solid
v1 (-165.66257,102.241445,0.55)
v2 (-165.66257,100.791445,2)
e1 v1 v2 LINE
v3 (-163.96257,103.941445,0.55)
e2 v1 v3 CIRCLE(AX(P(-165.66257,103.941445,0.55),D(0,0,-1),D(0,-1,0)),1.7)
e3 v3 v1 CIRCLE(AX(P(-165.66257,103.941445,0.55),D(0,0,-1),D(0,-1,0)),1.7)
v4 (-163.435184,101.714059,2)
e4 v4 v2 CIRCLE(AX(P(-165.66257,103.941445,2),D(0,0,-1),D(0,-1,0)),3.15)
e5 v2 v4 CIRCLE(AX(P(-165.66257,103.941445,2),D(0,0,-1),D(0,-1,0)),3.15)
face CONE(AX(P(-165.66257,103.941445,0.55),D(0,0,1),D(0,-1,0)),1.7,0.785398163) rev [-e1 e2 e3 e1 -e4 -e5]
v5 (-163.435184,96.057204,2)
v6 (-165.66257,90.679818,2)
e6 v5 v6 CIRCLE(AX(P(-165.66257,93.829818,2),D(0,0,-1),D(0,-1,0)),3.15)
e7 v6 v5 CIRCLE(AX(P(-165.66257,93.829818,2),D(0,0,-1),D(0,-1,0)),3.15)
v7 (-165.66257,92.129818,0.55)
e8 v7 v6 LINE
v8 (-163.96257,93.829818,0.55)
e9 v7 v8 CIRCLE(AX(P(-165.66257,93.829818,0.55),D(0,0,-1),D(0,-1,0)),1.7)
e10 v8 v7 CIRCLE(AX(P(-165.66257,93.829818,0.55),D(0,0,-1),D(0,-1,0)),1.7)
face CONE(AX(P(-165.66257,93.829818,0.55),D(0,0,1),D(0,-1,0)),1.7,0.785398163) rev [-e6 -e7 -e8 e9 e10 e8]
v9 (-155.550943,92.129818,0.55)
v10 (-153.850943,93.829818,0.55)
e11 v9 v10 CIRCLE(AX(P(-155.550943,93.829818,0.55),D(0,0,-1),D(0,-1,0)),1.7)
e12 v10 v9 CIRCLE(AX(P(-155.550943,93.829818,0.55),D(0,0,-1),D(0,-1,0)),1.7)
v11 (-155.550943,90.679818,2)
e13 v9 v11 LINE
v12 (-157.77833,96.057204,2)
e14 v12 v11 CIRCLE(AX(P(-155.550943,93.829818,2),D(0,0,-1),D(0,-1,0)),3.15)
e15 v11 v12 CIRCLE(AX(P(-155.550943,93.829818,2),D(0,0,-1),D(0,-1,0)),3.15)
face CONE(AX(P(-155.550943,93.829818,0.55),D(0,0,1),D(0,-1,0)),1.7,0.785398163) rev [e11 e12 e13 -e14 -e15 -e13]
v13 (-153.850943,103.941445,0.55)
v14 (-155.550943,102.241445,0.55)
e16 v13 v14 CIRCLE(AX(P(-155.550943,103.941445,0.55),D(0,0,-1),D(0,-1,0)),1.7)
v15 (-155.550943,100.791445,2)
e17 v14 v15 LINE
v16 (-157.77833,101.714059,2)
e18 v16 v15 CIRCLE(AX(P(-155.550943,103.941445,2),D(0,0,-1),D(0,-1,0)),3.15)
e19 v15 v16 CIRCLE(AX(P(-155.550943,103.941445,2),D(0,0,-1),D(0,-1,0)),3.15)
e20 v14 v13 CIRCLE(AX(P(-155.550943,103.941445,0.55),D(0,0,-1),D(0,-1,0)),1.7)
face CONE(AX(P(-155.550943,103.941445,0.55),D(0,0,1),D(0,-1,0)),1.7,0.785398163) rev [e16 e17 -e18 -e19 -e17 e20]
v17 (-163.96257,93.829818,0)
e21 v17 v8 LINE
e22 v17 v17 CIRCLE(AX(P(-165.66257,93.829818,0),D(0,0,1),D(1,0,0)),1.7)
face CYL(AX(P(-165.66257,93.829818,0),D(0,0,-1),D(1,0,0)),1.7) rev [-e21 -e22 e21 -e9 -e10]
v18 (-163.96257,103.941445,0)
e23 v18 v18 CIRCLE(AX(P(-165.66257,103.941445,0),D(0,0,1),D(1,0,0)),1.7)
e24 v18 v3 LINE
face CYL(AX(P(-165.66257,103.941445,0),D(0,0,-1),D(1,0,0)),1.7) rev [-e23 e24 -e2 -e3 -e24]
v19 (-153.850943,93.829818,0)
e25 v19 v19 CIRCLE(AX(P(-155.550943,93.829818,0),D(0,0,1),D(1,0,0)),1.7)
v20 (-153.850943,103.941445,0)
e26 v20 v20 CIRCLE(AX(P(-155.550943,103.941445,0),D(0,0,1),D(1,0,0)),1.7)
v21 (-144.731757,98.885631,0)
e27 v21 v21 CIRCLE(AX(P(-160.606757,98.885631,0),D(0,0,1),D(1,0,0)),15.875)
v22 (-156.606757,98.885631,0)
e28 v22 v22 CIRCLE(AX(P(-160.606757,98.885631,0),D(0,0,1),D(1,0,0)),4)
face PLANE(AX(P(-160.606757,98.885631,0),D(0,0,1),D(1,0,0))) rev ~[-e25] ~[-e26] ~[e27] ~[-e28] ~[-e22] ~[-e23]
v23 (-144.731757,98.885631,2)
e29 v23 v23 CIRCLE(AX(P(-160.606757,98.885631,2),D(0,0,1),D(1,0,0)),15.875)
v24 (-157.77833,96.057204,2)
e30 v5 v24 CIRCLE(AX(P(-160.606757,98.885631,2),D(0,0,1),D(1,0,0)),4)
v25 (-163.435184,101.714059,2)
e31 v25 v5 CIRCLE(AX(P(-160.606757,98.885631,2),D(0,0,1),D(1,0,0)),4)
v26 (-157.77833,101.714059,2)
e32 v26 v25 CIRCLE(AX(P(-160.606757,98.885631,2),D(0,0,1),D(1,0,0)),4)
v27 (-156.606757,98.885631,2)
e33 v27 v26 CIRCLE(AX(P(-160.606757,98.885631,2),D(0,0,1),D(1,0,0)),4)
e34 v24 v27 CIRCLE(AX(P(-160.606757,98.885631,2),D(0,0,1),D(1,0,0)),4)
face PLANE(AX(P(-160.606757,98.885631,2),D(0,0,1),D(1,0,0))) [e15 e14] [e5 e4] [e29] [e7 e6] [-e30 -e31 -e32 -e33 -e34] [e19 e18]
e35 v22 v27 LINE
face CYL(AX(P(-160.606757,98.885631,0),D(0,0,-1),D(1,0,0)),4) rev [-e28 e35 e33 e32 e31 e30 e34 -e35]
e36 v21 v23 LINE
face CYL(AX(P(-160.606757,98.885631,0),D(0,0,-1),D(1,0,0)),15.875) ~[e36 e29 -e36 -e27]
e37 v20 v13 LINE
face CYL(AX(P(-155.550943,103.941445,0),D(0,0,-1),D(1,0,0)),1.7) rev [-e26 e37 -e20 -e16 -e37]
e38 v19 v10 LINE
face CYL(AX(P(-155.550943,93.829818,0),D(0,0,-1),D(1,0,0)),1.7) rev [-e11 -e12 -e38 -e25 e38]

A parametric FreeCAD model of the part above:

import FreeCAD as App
import Part
import Sketcher
from FreeCAD import Vector
Q = App.Units.Quantity


def add_polygon(sketch, points):
    """Adds a closed chain of lines whose ends are joined by coincident constraints."""
    first, n = sketch.GeometryCount, len(points)
    for a, b in zip(points, points[1:] + points[:1]):
        sketch.addGeometry(Part.LineSegment(App.Vector(*a, 0), App.Vector(*b, 0)), False)
    for i in range(n):
        sketch.addConstraint(Sketcher.Constraint("Coincident", first + i, 2, first + (i + 1) % n, 1))

doc = App.newDocument("Part")
body = doc.addObject("PartDesign::Body", "Body")

# Sketch on XY plane
sketch1 = doc.addObject("Sketcher::SketchObject", "Sketch")
body.addObject(sketch1)
sketch1.AttachmentSupport = (doc.XY_Plane, [""])
sketch1.MapMode = "FlatFace"
sketch1.addGeometry([
    Part.Circle(Vector(-160.6, 98.9, 0), Vector(0, 0, 1), 15.9),  # 0
    Part.Circle(Vector(-165.7, 93.8, 0), Vector(0, 0, 1), 1.7),  # 1
    Part.Circle(Vector(-155.6, 93.8, 0), Vector(0, 0, 1), 1.7),  # 2
    Part.Circle(Vector(-165.7, 103.9, 0), Vector(0, 0, 1), 1.7),  # 3
    Part.Circle(Vector(-160.6, 98.9, 0), Vector(0, 0, 1), 4),  # 4
    Part.Circle(Vector(-155.6, 103.9, 0), Vector(0, 0, 1), 1.7),  # 5
], False)
sketch1.addConstraint([
    Sketcher.Constraint("Coincident", 4, 3, 0, 3),
    Sketcher.Constraint("Equal", 1, 2),
    Sketcher.Constraint("Equal", 2, 3),
    Sketcher.Constraint("Equal", 3, 5),
    Sketcher.Constraint("Horizontal", 1, 3, 2, 3),
    Sketcher.Constraint("Horizontal", 3, 3, 5, 3),
    Sketcher.Constraint("Vertical", 1, 3, 3, 3),
    Sketcher.Constraint("Vertical", 2, 3, 5, 3),
    Sketcher.Constraint("Diameter", 4, 8.0),
    Sketcher.Constraint("Diameter", 1, 3.4),
    Sketcher.Constraint("Diameter", 0, 31.75),
    Sketcher.Constraint("DistanceY", -1, 1, 0, 3, 98.885631),
    Sketcher.Constraint("DistanceX", 1, 3, -1, 1, 165.66257),
    Sketcher.Constraint("DistanceX", 0, 3, -1, 1, 160.606757),
    Sketcher.Constraint("DistanceY", -1, 1, 1, 3, 93.829818),
    Sketcher.Constraint("DistanceX", 2, 3, -1, 1, 155.550943),
    Sketcher.Constraint("DistanceY", -1, 1, 3, 3, 103.941445),
])
pad1 = doc.addObject("PartDesign::Pad", "Pad")
body.addObject(pad1)
pad1.Profile = sketch1
pad1.Length = 2

# Sketch on YZ plane
sketch2 = doc.addObject("Sketcher::SketchObject", "Sketch001")
body.addObject(sketch2)
sketch2.AttachmentSupport = (doc.YZ_Plane, [""])
sketch2.MapMode = "FlatFace"
sketch2.AttachmentOffset = App.Placement(Vector(0, 0, -165.66257), App.Rotation())
add_polygon(sketch2, [(103.9, 0), (103.9, 2), (100.8, 2), (102.2, 0.6), (102.2, 0)])  # lines 0-4
sketch2.addGeometry(Part.LineSegment(Vector(103.9, 2, 0), Vector(103.9, 0, 0)), True)  # axis
sketch2.addConstraint([
    Sketcher.Constraint("Vertical", 0),
    Sketcher.Constraint("Horizontal", 1),
    Sketcher.Constraint("Vertical", 3),
    Sketcher.Constraint("Horizontal", 4),
    Sketcher.Constraint("Vertical", 5),
    Sketcher.Constraint("Coincident", 5, 1, 0, 2),
    Sketcher.Constraint("PointOnObject", 3, 2, -1),
    Sketcher.Constraint("PointOnObject", 5, 2, -1),
    Sketcher.Constraint("DistanceY", 0, 1, 0, 2, 2.0),
    Sketcher.Constraint("Angle", 2, Q("-45 deg")),
    Sketcher.Constraint("DistanceX", 4, 1, 4, 2, 1.7),
    Sketcher.Constraint("DistanceX", 1, 2, 1, 1, 3.15),
    Sketcher.Constraint("DistanceX", -1, 1, 0, 2, 103.941445),
])
groove = doc.addObject("PartDesign::Groove", "Groove")
body.addObject(groove)
groove.Profile = sketch2
groove.ReferenceAxis = (sketch2, ["Axis0"])
groove.Angle = 360
doc.recompute()

linearpattern = doc.addObject("PartDesign::LinearPattern", "LinearPattern")
body.addObject(linearpattern)
linearpattern.Originals = [groove]
linearpattern.Direction = (doc.X_Axis, [""])
linearpattern.Mode = "offset"
linearpattern.Offset = 10.111627
linearpattern.Occurrences = 2
body.Tip = linearpattern
doc.recompute()

datumline = doc.addObject("PartDesign::Line", "DatumLine")
body.addObject(datumline)
datumline.Placement = App.Placement(Vector(0, 0, 0), App.Rotation(Vector(0, 0, 1), Vector(0.707106781, -0.707106781, 0)))
linearpattern2 = doc.addObject("PartDesign::LinearPattern", "LinearPattern001")
body.addObject(linearpattern2)
linearpattern2.Originals = [groove]
linearpattern2.Direction = (datumline, [""])
linearpattern2.Mode = "offset"
linearpattern2.Offset = 14.3
linearpattern2.Occurrences = 2
body.Tip = linearpattern2
doc.recompute()

linearpattern3 = doc.addObject("PartDesign::LinearPattern", "LinearPattern002")
body.addObject(linearpattern3)
linearpattern3.Originals = [groove]
linearpattern3.Direction = (doc.Y_Axis, [""])
linearpattern3.Mode = "offset"
linearpattern3.Offset = 10.111627
linearpattern3.Occurrences = 2
linearpattern3.Reversed = True
body.Tip = linearpattern3

doc.recompute()
